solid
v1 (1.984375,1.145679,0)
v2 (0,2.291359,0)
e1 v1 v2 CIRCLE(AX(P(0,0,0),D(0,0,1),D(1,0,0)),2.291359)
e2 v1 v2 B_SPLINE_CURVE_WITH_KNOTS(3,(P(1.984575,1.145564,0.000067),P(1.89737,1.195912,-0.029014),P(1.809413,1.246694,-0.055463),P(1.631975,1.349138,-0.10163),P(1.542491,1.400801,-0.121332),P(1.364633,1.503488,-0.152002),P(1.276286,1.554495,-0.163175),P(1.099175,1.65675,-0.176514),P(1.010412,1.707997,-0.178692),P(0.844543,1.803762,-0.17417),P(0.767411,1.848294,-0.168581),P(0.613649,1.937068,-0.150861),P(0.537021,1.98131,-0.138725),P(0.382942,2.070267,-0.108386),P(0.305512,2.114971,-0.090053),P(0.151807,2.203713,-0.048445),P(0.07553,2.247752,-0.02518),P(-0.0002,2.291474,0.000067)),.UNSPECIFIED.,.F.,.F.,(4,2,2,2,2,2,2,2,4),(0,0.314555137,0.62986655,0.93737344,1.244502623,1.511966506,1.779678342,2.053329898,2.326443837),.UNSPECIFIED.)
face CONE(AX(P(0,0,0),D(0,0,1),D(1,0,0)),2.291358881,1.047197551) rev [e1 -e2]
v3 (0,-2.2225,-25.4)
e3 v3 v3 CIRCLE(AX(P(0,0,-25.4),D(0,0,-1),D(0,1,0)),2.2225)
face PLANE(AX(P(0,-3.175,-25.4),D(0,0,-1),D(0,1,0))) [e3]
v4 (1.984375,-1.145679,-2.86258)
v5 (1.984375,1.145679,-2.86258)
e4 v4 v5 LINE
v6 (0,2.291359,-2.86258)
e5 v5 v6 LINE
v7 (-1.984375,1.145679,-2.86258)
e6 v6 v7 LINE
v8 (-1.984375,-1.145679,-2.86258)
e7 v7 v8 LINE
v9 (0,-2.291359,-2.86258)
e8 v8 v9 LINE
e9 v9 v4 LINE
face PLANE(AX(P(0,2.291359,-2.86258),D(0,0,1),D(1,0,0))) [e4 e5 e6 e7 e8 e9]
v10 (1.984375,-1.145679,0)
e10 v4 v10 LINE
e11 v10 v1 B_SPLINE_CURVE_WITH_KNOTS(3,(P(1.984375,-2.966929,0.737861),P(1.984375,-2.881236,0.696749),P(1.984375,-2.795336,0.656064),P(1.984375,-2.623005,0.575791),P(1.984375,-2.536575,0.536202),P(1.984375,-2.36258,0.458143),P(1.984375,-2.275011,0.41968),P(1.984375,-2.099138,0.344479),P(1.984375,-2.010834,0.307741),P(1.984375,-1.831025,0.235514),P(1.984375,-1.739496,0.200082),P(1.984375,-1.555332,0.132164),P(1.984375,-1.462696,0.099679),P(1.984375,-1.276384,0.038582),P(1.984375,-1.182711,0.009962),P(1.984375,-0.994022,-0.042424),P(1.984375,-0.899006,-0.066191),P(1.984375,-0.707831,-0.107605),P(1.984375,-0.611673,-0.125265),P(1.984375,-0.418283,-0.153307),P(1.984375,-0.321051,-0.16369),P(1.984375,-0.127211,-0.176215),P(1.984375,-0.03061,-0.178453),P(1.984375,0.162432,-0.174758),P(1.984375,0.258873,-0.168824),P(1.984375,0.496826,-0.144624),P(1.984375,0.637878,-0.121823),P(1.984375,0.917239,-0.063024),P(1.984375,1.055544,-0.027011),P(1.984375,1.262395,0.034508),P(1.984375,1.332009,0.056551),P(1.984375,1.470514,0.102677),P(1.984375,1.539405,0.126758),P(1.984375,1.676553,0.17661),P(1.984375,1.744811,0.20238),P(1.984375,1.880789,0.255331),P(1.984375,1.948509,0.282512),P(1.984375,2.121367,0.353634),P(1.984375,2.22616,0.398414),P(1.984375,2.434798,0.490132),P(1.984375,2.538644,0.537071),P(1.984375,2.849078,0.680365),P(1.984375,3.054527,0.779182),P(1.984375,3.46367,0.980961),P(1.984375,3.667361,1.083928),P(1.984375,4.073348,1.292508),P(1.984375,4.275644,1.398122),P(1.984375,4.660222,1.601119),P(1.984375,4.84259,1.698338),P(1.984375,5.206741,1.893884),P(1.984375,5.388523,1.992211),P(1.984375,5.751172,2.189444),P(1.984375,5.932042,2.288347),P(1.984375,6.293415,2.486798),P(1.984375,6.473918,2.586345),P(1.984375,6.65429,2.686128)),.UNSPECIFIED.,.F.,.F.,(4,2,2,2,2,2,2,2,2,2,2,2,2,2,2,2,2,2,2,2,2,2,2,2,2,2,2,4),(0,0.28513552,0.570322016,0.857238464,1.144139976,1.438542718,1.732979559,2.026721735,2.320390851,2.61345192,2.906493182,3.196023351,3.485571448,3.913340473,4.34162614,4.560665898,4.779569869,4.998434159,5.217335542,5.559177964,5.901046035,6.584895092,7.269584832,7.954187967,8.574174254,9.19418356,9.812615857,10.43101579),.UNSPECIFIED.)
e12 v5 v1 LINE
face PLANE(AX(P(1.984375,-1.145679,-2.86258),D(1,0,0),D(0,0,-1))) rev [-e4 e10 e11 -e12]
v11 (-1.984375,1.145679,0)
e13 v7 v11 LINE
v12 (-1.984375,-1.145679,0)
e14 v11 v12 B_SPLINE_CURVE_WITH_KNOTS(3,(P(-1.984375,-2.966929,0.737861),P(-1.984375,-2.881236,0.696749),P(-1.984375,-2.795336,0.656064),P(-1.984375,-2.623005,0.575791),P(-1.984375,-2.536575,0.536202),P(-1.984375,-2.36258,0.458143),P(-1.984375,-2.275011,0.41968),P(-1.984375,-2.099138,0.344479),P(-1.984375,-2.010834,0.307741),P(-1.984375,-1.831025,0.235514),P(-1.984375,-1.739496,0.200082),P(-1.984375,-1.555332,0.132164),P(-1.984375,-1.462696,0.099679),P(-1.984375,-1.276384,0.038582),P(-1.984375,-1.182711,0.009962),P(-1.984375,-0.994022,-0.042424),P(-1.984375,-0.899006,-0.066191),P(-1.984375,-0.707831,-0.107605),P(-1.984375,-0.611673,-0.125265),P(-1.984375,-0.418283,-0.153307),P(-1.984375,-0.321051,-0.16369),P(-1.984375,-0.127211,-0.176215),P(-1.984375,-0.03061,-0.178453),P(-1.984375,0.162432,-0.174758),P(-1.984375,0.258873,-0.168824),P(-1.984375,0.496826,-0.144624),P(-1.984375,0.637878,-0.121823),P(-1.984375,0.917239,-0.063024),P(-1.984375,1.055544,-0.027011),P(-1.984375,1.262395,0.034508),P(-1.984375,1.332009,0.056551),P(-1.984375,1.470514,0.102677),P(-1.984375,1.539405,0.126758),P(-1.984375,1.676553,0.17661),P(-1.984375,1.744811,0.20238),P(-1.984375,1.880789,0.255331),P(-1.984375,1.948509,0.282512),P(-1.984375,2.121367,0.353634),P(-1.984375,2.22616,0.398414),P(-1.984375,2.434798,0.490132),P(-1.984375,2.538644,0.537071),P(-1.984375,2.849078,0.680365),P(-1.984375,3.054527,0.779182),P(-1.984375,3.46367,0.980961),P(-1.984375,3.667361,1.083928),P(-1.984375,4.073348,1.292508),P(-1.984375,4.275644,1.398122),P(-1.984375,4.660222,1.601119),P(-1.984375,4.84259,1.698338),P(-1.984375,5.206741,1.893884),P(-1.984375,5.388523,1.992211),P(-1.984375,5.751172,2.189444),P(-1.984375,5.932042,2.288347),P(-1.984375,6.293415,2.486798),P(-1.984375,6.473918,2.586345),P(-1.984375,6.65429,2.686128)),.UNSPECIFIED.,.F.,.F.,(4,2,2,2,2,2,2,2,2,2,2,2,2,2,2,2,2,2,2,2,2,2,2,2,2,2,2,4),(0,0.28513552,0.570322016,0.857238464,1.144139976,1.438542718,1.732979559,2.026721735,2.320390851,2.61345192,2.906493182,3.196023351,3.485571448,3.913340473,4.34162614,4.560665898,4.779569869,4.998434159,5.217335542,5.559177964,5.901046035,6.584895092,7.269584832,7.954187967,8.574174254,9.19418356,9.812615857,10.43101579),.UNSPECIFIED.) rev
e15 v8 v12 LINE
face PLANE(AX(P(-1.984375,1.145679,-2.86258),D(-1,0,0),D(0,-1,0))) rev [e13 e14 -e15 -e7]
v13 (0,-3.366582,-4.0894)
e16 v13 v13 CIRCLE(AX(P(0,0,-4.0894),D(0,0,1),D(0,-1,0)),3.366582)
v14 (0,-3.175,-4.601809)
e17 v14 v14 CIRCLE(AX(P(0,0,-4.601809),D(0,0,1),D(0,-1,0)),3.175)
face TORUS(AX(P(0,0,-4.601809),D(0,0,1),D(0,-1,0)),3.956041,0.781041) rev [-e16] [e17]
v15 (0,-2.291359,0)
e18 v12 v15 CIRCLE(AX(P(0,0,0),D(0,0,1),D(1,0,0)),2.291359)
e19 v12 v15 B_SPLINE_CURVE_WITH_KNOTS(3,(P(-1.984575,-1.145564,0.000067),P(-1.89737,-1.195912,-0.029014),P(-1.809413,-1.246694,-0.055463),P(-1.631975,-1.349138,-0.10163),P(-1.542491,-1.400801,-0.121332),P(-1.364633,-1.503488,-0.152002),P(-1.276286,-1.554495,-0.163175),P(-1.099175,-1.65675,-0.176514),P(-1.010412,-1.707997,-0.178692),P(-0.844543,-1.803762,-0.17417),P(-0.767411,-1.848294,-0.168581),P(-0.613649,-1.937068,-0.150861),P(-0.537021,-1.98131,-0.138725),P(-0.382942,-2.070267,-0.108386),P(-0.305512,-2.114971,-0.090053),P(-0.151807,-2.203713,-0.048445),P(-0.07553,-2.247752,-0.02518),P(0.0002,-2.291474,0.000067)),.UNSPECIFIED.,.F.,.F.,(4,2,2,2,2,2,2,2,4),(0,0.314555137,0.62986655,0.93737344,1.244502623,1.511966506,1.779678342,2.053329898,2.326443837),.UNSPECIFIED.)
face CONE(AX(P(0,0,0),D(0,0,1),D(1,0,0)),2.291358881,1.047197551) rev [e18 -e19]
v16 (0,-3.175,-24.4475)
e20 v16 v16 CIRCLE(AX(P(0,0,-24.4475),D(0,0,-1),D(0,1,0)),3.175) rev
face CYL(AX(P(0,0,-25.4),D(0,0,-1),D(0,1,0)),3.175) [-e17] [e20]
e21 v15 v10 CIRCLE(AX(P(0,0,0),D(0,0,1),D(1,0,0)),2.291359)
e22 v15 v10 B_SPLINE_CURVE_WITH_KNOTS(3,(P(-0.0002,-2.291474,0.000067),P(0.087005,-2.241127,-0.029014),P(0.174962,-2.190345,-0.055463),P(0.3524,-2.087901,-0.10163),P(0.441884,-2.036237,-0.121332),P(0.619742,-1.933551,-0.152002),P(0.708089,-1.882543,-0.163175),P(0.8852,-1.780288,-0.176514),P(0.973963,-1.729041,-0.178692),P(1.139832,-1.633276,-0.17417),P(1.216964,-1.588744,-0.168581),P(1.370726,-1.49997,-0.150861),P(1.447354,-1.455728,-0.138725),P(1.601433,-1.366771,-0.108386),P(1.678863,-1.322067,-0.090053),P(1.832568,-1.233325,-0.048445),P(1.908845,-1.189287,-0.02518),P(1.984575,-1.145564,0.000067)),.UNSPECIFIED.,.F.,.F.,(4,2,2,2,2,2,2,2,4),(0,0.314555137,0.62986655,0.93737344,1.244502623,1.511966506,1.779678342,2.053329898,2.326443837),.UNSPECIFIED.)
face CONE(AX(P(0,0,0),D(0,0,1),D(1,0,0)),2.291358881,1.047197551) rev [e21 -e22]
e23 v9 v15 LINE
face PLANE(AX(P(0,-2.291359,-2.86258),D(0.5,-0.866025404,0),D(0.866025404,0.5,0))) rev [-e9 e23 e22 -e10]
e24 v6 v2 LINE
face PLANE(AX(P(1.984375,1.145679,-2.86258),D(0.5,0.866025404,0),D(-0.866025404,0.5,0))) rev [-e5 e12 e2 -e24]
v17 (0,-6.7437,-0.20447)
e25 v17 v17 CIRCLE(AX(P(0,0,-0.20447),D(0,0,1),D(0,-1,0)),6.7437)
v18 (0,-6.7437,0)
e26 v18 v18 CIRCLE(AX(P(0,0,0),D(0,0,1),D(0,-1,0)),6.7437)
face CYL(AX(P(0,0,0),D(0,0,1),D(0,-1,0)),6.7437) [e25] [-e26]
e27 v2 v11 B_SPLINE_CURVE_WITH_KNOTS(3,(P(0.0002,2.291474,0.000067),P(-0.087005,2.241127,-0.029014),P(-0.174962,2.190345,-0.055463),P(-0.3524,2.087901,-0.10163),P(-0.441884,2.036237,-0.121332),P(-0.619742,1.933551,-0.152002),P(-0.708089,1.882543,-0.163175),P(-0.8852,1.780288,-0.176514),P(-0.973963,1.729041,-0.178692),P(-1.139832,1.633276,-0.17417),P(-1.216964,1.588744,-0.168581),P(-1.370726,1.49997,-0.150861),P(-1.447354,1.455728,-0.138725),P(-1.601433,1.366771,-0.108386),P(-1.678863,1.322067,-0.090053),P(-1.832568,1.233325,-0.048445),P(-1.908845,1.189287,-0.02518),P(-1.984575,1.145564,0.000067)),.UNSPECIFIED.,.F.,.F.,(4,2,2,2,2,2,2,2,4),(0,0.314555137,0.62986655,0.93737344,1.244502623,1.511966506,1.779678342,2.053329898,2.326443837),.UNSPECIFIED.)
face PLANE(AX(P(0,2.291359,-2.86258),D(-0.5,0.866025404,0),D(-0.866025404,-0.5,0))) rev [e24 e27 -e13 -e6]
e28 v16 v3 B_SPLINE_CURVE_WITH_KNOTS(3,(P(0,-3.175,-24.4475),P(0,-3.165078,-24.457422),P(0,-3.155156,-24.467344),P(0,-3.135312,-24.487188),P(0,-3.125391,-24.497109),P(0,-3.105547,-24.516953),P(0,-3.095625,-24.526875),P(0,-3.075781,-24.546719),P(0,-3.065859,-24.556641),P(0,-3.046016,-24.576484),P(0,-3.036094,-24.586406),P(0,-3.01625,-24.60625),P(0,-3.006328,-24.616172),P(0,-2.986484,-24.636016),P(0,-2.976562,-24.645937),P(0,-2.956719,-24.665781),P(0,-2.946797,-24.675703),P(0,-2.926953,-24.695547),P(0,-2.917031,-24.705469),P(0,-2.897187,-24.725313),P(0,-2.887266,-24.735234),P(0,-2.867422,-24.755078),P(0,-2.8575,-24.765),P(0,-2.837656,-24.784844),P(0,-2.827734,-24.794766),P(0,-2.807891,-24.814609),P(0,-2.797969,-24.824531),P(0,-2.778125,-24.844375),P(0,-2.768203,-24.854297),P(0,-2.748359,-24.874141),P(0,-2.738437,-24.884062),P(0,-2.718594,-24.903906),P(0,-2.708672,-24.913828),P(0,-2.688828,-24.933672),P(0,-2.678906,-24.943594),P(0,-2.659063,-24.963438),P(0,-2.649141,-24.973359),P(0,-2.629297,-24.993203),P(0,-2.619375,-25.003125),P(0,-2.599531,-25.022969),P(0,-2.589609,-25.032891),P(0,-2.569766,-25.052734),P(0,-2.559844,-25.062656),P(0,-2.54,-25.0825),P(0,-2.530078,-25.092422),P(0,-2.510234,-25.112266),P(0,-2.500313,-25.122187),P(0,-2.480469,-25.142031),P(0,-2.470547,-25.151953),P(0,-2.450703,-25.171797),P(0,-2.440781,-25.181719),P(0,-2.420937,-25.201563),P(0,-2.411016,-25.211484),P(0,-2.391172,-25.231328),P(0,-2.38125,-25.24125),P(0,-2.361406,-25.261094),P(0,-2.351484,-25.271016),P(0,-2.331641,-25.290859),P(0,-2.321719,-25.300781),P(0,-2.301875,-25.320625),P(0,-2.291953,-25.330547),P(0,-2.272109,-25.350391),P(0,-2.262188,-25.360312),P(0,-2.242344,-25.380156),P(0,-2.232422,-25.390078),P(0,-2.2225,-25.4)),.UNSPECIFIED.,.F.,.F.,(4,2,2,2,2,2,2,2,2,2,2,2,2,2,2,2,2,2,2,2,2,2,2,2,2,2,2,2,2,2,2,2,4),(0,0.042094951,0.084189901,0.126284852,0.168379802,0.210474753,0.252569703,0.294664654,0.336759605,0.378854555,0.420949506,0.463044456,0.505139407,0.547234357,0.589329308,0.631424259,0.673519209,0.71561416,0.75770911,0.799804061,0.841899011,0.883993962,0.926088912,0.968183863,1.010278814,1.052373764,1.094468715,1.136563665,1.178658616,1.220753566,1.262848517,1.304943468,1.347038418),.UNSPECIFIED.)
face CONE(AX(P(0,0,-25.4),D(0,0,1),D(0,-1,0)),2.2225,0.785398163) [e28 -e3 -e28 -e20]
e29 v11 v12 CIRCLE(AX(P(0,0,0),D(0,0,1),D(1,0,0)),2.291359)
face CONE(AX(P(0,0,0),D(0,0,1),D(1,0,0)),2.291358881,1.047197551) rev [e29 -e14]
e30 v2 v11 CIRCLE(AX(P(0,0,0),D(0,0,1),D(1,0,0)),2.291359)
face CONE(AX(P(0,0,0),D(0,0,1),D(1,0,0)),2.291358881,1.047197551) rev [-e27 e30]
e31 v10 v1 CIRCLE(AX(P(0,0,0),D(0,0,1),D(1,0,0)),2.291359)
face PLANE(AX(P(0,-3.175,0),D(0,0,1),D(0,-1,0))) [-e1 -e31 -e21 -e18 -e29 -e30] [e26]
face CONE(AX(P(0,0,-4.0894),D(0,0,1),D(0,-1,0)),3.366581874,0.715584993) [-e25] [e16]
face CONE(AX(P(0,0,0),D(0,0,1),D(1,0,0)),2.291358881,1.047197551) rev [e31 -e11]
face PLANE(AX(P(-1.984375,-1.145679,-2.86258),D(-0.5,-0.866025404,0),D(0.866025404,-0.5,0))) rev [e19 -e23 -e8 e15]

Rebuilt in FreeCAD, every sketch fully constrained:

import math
import FreeCAD as App
import Part
import Sketcher
from FreeCAD import Vector
Q = App.Units.Quantity


def edges_at(feature, points):
    """Names of the edges that pass closest to the given points."""
    edges = feature.Shape.Edges
    near = lambda p: min(range(len(edges)), key=lambda i: edges[i].distToShape(Part.Vertex(*p))[0])
    return sorted({f"Edge{near(p) + 1}" for p in points})


def add_polygon(sketch, points):
    """Adds a closed chain of lines whose ends are joined by coincident constraints."""
    first, n = sketch.GeometryCount, len(points)
    for a, b in zip(points, points[1:] + points[:1]):
        sketch.addGeometry(Part.LineSegment(App.Vector(*a, 0), App.Vector(*b, 0)), False)
    for i in range(n):
        sketch.addConstraint(Sketcher.Constraint("Coincident", first + i, 2, first + (i + 1) % n, 1))

doc = App.newDocument("Part")
body = doc.addObject("PartDesign::Body", "Body")

# Sketch on YZ plane
sketch1 = doc.addObject("Sketcher::SketchObject", "Sketch")
body.addObject(sketch1)
sketch1.AttachmentSupport = (doc.YZ_Plane, [""])
sketch1.MapMode = "FlatFace"
add_polygon(sketch1, [(3.175, 0), (0, 0), (0, -25.4), (3.175, -25.4)])  # lines 0-3
sketch1.addConstraint([
    Sketcher.Constraint("Horizontal", 0),
    Sketcher.Constraint("Vertical", 1),
    Sketcher.Constraint("Horizontal", 2),
    Sketcher.Constraint("Vertical", 3),
    Sketcher.Constraint("Coincident", 0, 2, -1, 1),
    Sketcher.Constraint("DistanceY", 1, 2, 1, 1, Q("1 in")),
    Sketcher.Constraint("DistanceX", 0, 2, 0, 1, Q("0.125 in")),
])
revolution = doc.addObject("PartDesign::Revolution", "Revolution")
body.addObject(revolution)
revolution.Profile = sketch1
revolution.ReferenceAxis = (sketch1, ["V_Axis"])
revolution.Angle = 360
doc.recompute()

chamfer = doc.addObject("PartDesign::Chamfer", "Chamfer")
body.addObject(chamfer)
chamfer.Base = (revolution, edges_at(revolution, [(0, -3.175, -25.4)]))
chamfer.Size = Q("0.0375 in")

# Sketch on YZ plane
sketch2 = doc.addObject("Sketcher::SketchObject", "Sketch001")
body.addObject(sketch2)
sketch2.AttachmentSupport = (doc.YZ_Plane, [""])
sketch2.MapMode = "FlatFace"
sketch2.addGeometry([
    Part.LineSegment(Vector(6.7437, -0.20447, 0), Vector(6.7437, 0, 0)),  # 0
    Part.LineSegment(Vector(6.7437, 0, 0), Vector(0, 0, 0)),  # 1
    Part.LineSegment(Vector(0, 0, 0), Vector(0, -4.601809, 0)),  # 2
    Part.LineSegment(Vector(0, -4.601809, 0), Vector(3.175, -4.601809, 0)),  # 3
    Part.ArcOfCircle(Part.Circle(Vector(3.956041, -4.601809, 0), Vector(0, 0, 1), 0.781041), math.radians(139), math.radians(180)),  # 4
    Part.LineSegment(Vector(3.366582, -4.0894, 0), Vector(6.7437, -0.20447, 0)),  # 5
], False)
sketch2.addConstraint([
    Sketcher.Constraint("Coincident", 0, 2, 1, 1),
    Sketcher.Constraint("Coincident", 1, 2, 2, 1),
    Sketcher.Constraint("Coincident", 2, 2, 3, 1),
    Sketcher.Constraint("Coincident", 3, 2, 4, 2),
    Sketcher.Constraint("Tangent", 4, 1, 5, 1),
    Sketcher.Constraint("Coincident", 5, 2, 0, 1),
    Sketcher.Constraint("Vertical", 0),
    Sketcher.Constraint("Horizontal", 1),
    Sketcher.Constraint("Vertical", 2),
    Sketcher.Constraint("Horizontal", 3),
    Sketcher.Constraint("Coincident", 1, 2, -1, 1),
    Sketcher.Constraint("Horizontal", 4, 3, 2, 2),
    Sketcher.Constraint("Angle", 5, Q("49 deg")),
    Sketcher.Constraint("DistanceX", 3, 1, 3, 2, Q("0.125 in")),
    Sketcher.Constraint("DistanceX", 1, 2, 1, 1, Q("0.2655 in")),
    Sketcher.Constraint("DistanceY", 4, 1, -1, 1, Q("0.161 in")),
    Sketcher.Constraint("Radius", 4, 0.781041),
])
revolution2 = doc.addObject("PartDesign::Revolution", "Revolution001")
body.addObject(revolution2)
revolution2.Profile = sketch2
revolution2.ReferenceAxis = (sketch2, ["V_Axis"])
revolution2.Angle = 360

# Sketch on YZ plane
sketch3 = doc.addObject("Sketcher::SketchObject", "Sketch002")
body.addObject(sketch3)
sketch3.AttachmentSupport = (doc.YZ_Plane, [""])
sketch3.MapMode = "FlatFace"
add_polygon(sketch3, [(0, -4.601809), (-3.175, -4.601809), (0, -7.667871)])  # lines 0-2
sketch3.addConstraint([
    Sketcher.Constraint("Horizontal", 0),
    Sketcher.Constraint("Vertical", 2),
    Sketcher.Constraint("PointOnObject", 1, 2, -2),
    Sketcher.Constraint("Angle", 1, Q("-44 deg")),
    Sketcher.Constraint("DistanceX", 0, 2, 0, 1, Q("0.125 in")),
    Sketcher.Constraint("DistanceY", 0, 2, -1, 1, 4.601809),
])
revolution3 = doc.addObject("PartDesign::Revolution", "Revolution002")
body.addObject(revolution3)
revolution3.Profile = sketch3
revolution3.ReferenceAxis = (sketch3, ["V_Axis"])
revolution3.Angle = 360

# Sketch on XY plane
sketch4 = doc.addObject("Sketcher::SketchObject", "Sketch003")
body.addObject(sketch4)
sketch4.AttachmentSupport = (doc.XY_Plane, [""])
sketch4.MapMode = "FlatFace"
add_polygon(sketch4, [(0, 2.291359), (-1.984375, 1.145679), (-1.984375, -1.145679), (0, -2.291359), (1.984375, -1.145679), (1.984375, 1.145679)])  # lines 0-5
sketch4.addConstraint([
    Sketcher.Constraint("Vertical", 1),
    Sketcher.Constraint("Vertical", 4),
    Sketcher.Constraint("Symmetric", 0, 2, 3, 2, -1, 1),
    Sketcher.Constraint("Symmetric", 2, 2, 5, 2, -1, 1),
    Sketcher.Constraint("PointOnObject", 2, 2, -2),
    Sketcher.Constraint("Parallel", 2, 5),
    Sketcher.Constraint("Horizontal", 1, 2, 3, 2),
    Sketcher.Constraint("Angle", 0, Q("-150 deg")),
    Sketcher.Constraint("DistanceX", 0, 2, -1, 1, Q("0.078125 in")),
    Sketcher.Constraint("DistanceY", 1, 2, 1, 1, 2.291359),
])
pocket1 = doc.addObject("PartDesign::Pocket", "Pocket")
body.addObject(pocket1)
pocket1.Profile = sketch4
pocket1.Length = Q("0.1127 in")

# Sketch on YZ plane
sketch5 = doc.addObject("Sketcher::SketchObject", "Sketch004")
body.addObject(sketch5)
sketch5.AttachmentSupport = (doc.YZ_Plane, [""])
sketch5.MapMode = "FlatFace"
add_polygon(sketch5, [(0, 0), (-2.291359, 0), (0, -1.322917)])  # lines 0-2
sketch5.addConstraint([
    Sketcher.Constraint("Horizontal", 0),
    Sketcher.Constraint("Vertical", 2),
    Sketcher.Constraint("Coincident", 2, 2, -1, 1),
    Sketcher.Constraint("Angle", 1, Q("-30 deg")),
    Sketcher.Constraint("DistanceX", 0, 2, 0, 1, 2.291359),
])
groove = doc.addObject("PartDesign::Groove", "Groove")
body.addObject(groove)
groove.Profile = sketch5
groove.ReferenceAxis = (sketch5, ["V_Axis"])
groove.Angle = 360

doc.recompute()
